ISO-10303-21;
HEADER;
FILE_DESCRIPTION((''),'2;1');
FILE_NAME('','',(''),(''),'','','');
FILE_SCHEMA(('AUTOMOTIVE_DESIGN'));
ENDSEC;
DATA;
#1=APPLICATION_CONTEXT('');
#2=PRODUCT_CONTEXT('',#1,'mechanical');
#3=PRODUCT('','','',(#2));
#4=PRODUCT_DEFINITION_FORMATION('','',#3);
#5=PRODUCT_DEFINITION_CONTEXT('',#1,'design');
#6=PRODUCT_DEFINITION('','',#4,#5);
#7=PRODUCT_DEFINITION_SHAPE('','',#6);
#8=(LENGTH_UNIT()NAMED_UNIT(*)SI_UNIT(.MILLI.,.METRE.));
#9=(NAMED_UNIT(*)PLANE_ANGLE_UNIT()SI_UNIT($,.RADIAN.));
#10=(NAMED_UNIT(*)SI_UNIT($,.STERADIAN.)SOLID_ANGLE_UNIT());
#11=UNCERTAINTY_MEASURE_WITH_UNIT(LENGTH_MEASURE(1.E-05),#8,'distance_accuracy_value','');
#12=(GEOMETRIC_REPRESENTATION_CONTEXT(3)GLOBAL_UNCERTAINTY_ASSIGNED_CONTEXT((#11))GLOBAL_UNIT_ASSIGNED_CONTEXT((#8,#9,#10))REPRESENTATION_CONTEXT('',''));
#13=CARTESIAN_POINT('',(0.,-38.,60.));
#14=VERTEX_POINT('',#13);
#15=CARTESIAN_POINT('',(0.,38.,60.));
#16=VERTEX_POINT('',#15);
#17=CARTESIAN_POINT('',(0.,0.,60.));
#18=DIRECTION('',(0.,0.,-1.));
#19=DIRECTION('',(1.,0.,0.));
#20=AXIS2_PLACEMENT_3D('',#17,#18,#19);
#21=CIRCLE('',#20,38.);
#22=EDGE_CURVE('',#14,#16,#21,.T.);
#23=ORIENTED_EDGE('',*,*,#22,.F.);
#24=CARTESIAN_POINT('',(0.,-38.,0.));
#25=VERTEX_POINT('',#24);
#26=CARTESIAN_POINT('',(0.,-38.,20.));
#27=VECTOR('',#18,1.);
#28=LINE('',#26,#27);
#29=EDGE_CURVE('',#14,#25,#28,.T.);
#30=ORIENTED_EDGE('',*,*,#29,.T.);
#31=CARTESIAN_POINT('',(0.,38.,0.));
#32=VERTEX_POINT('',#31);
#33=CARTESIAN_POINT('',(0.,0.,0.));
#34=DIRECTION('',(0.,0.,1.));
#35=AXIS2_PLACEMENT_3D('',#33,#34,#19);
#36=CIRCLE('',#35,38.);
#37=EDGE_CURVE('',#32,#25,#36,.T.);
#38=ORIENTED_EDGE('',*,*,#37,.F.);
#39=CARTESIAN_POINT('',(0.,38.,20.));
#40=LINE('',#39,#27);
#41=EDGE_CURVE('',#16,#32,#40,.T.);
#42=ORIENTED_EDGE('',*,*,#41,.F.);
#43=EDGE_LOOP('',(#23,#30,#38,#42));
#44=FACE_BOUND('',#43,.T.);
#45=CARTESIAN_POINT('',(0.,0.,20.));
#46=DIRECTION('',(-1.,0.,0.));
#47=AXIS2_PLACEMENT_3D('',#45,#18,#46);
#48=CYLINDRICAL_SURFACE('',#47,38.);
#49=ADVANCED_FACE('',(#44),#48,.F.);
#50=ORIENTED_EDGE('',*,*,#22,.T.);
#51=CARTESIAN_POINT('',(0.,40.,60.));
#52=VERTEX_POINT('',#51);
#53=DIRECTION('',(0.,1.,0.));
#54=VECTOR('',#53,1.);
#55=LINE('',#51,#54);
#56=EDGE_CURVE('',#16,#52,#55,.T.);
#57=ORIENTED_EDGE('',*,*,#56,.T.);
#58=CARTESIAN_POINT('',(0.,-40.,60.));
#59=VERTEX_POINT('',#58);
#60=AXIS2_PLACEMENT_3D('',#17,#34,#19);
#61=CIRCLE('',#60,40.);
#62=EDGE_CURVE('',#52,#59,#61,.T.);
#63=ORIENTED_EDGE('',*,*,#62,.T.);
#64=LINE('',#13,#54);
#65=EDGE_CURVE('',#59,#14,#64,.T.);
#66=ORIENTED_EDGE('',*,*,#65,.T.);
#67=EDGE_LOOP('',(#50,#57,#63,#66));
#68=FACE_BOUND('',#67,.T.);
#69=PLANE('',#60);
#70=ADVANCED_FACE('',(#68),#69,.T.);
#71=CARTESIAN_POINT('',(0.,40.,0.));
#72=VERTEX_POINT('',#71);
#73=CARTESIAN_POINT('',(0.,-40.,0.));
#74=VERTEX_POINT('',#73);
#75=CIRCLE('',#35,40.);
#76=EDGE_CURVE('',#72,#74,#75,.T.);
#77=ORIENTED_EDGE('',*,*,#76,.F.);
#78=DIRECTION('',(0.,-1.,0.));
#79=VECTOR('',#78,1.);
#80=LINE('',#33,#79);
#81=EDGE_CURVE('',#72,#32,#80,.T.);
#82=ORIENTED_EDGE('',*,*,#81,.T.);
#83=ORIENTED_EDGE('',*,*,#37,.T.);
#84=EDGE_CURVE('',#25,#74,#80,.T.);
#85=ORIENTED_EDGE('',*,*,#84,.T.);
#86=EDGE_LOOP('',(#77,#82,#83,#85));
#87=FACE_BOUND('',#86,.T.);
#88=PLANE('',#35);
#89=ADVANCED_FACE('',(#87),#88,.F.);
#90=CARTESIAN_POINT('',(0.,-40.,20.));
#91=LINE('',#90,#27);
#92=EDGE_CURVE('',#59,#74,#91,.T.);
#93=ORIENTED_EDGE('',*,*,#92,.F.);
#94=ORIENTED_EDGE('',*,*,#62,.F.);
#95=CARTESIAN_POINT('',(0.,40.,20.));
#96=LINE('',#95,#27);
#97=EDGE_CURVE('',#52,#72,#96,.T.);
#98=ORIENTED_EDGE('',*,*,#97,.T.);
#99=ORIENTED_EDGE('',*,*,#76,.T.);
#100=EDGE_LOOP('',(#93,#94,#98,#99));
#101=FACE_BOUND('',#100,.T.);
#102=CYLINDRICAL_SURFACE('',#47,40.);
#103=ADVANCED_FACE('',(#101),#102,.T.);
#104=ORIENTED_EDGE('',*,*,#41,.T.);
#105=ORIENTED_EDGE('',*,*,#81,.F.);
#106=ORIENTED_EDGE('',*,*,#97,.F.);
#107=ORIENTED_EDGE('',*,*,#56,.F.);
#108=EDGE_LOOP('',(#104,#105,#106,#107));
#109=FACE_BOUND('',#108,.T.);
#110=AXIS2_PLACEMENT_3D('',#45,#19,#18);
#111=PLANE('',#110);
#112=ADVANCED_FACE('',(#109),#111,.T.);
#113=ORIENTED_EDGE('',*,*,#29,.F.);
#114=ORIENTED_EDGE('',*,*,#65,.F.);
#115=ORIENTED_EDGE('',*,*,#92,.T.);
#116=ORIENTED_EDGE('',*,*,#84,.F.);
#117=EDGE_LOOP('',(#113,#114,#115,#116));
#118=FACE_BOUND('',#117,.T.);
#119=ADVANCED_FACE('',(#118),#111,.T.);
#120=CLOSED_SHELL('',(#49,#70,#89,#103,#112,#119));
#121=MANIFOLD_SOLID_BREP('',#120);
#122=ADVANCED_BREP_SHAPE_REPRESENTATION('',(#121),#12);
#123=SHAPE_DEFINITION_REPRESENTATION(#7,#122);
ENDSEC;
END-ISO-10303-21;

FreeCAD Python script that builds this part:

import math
import FreeCAD as App
import Part
import Sketcher
Q = App.Units.Quantity

doc = App.newDocument("Part")
body = doc.addObject("PartDesign::Body", "Body")

# Sketch on XY plane
sketch1 = body.newObject("Sketcher::SketchObject", "Sketch")
sketch1.AttachmentSupport = (doc.getObject("XY_Plane"), [""])
sketch1.MapMode = "FlatFace"
sketch1.addGeometry([
    Part.LineSegment(App.Vector(0, 38, 0), App.Vector(0, 40, 0)),
    Part.ArcOfCircle(Part.Circle(App.Vector(0, 0, 0), App.Vector(0, 0, 1), 40), math.radians(90), math.radians(270)),
    Part.LineSegment(App.Vector(0, -40, 0), App.Vector(0, -38, 0)),
    Part.ArcOfCircle(Part.Circle(App.Vector(0, 0, 0), App.Vector(0, 0, 1), 38), math.radians(90), math.radians(270)),
], False)
sketch1.addConstraint([
    Sketcher.Constraint("Coincident", 0, 2, 1, 1),
    Sketcher.Constraint("Coincident", 1, 2, 2, 1),
    Sketcher.Constraint("Coincident", 2, 2, 3, 2),
    Sketcher.Constraint("Coincident", 3, 1, 0, 1),
    Sketcher.Constraint("Vertical", 0),
    Sketcher.Constraint("Vertical", 2),
    Sketcher.Constraint("Coincident", 1, 3, -1, 1),
    Sketcher.Constraint("Coincident", 3, 3, -1, 1),
    Sketcher.Constraint("PointOnObject", 0, 2, -2),
    Sketcher.Constraint("PointOnObject", 1, 2, -2),
    Sketcher.Constraint("Radius", 1, Q("40 mm")),
    Sketcher.Constraint("Radius", 3, Q("38 mm")),
])
pad1 = body.newObject("PartDesign::Pad", "Pad")
pad1.Profile = sketch1
pad1.Length = 20

# Sketch on XY plane
sketch2 = body.newObject("Sketcher::SketchObject", "Sketch001")
sketch2.AttachmentSupport = (doc.getObject("XY_Plane"), [""])
sketch2.MapMode = "FlatFace"
sketch2.AttachmentOffset = App.Placement(App.Vector(0, 0, 20), App.Rotation())
sketch2.addGeometry([
    Part.LineSegment(App.Vector(0, -40, 0), App.Vector(0, -38, 0)),
    Part.ArcOfCircle(Part.Circle(App.Vector(0, 0, 0), App.Vector(0, 0, 1), 38), math.radians(90), math.radians(270)),
    Part.LineSegment(App.Vector(0, 38, 0), App.Vector(0, 40, 0)),
    Part.ArcOfCircle(Part.Circle(App.Vector(0, 0, 0), App.Vector(0, 0, 1), 40), math.radians(90), math.radians(270)),
], False)
sketch2.addConstraint([
    Sketcher.Constraint("Coincident", 0, 2, 1, 2),
    Sketcher.Constraint("Coincident", 1, 1, 2, 1),
    Sketcher.Constraint("Coincident", 2, 2, 3, 1),
    Sketcher.Constraint("Coincident", 3, 2, 0, 1),
    Sketcher.Constraint("Vertical", 0),
    Sketcher.Constraint("Vertical", 2),
    Sketcher.Constraint("Coincident", 1, 3, -1, 1),
    Sketcher.Constraint("Coincident", 3, 3, -1, 1),
    Sketcher.Constraint("PointOnObject", 0, 2, -2),
    Sketcher.Constraint("PointOnObject", 1, 1, -2),
    Sketcher.Constraint("Radius", 1, Q("38 mm")),
    Sketcher.Constraint("Radius", 3, Q("40 mm")),
])
pad2 = body.newObject("PartDesign::Pad", "Pad001")
pad2.Profile = sketch2
pad2.Length = 40

doc.recompute()
